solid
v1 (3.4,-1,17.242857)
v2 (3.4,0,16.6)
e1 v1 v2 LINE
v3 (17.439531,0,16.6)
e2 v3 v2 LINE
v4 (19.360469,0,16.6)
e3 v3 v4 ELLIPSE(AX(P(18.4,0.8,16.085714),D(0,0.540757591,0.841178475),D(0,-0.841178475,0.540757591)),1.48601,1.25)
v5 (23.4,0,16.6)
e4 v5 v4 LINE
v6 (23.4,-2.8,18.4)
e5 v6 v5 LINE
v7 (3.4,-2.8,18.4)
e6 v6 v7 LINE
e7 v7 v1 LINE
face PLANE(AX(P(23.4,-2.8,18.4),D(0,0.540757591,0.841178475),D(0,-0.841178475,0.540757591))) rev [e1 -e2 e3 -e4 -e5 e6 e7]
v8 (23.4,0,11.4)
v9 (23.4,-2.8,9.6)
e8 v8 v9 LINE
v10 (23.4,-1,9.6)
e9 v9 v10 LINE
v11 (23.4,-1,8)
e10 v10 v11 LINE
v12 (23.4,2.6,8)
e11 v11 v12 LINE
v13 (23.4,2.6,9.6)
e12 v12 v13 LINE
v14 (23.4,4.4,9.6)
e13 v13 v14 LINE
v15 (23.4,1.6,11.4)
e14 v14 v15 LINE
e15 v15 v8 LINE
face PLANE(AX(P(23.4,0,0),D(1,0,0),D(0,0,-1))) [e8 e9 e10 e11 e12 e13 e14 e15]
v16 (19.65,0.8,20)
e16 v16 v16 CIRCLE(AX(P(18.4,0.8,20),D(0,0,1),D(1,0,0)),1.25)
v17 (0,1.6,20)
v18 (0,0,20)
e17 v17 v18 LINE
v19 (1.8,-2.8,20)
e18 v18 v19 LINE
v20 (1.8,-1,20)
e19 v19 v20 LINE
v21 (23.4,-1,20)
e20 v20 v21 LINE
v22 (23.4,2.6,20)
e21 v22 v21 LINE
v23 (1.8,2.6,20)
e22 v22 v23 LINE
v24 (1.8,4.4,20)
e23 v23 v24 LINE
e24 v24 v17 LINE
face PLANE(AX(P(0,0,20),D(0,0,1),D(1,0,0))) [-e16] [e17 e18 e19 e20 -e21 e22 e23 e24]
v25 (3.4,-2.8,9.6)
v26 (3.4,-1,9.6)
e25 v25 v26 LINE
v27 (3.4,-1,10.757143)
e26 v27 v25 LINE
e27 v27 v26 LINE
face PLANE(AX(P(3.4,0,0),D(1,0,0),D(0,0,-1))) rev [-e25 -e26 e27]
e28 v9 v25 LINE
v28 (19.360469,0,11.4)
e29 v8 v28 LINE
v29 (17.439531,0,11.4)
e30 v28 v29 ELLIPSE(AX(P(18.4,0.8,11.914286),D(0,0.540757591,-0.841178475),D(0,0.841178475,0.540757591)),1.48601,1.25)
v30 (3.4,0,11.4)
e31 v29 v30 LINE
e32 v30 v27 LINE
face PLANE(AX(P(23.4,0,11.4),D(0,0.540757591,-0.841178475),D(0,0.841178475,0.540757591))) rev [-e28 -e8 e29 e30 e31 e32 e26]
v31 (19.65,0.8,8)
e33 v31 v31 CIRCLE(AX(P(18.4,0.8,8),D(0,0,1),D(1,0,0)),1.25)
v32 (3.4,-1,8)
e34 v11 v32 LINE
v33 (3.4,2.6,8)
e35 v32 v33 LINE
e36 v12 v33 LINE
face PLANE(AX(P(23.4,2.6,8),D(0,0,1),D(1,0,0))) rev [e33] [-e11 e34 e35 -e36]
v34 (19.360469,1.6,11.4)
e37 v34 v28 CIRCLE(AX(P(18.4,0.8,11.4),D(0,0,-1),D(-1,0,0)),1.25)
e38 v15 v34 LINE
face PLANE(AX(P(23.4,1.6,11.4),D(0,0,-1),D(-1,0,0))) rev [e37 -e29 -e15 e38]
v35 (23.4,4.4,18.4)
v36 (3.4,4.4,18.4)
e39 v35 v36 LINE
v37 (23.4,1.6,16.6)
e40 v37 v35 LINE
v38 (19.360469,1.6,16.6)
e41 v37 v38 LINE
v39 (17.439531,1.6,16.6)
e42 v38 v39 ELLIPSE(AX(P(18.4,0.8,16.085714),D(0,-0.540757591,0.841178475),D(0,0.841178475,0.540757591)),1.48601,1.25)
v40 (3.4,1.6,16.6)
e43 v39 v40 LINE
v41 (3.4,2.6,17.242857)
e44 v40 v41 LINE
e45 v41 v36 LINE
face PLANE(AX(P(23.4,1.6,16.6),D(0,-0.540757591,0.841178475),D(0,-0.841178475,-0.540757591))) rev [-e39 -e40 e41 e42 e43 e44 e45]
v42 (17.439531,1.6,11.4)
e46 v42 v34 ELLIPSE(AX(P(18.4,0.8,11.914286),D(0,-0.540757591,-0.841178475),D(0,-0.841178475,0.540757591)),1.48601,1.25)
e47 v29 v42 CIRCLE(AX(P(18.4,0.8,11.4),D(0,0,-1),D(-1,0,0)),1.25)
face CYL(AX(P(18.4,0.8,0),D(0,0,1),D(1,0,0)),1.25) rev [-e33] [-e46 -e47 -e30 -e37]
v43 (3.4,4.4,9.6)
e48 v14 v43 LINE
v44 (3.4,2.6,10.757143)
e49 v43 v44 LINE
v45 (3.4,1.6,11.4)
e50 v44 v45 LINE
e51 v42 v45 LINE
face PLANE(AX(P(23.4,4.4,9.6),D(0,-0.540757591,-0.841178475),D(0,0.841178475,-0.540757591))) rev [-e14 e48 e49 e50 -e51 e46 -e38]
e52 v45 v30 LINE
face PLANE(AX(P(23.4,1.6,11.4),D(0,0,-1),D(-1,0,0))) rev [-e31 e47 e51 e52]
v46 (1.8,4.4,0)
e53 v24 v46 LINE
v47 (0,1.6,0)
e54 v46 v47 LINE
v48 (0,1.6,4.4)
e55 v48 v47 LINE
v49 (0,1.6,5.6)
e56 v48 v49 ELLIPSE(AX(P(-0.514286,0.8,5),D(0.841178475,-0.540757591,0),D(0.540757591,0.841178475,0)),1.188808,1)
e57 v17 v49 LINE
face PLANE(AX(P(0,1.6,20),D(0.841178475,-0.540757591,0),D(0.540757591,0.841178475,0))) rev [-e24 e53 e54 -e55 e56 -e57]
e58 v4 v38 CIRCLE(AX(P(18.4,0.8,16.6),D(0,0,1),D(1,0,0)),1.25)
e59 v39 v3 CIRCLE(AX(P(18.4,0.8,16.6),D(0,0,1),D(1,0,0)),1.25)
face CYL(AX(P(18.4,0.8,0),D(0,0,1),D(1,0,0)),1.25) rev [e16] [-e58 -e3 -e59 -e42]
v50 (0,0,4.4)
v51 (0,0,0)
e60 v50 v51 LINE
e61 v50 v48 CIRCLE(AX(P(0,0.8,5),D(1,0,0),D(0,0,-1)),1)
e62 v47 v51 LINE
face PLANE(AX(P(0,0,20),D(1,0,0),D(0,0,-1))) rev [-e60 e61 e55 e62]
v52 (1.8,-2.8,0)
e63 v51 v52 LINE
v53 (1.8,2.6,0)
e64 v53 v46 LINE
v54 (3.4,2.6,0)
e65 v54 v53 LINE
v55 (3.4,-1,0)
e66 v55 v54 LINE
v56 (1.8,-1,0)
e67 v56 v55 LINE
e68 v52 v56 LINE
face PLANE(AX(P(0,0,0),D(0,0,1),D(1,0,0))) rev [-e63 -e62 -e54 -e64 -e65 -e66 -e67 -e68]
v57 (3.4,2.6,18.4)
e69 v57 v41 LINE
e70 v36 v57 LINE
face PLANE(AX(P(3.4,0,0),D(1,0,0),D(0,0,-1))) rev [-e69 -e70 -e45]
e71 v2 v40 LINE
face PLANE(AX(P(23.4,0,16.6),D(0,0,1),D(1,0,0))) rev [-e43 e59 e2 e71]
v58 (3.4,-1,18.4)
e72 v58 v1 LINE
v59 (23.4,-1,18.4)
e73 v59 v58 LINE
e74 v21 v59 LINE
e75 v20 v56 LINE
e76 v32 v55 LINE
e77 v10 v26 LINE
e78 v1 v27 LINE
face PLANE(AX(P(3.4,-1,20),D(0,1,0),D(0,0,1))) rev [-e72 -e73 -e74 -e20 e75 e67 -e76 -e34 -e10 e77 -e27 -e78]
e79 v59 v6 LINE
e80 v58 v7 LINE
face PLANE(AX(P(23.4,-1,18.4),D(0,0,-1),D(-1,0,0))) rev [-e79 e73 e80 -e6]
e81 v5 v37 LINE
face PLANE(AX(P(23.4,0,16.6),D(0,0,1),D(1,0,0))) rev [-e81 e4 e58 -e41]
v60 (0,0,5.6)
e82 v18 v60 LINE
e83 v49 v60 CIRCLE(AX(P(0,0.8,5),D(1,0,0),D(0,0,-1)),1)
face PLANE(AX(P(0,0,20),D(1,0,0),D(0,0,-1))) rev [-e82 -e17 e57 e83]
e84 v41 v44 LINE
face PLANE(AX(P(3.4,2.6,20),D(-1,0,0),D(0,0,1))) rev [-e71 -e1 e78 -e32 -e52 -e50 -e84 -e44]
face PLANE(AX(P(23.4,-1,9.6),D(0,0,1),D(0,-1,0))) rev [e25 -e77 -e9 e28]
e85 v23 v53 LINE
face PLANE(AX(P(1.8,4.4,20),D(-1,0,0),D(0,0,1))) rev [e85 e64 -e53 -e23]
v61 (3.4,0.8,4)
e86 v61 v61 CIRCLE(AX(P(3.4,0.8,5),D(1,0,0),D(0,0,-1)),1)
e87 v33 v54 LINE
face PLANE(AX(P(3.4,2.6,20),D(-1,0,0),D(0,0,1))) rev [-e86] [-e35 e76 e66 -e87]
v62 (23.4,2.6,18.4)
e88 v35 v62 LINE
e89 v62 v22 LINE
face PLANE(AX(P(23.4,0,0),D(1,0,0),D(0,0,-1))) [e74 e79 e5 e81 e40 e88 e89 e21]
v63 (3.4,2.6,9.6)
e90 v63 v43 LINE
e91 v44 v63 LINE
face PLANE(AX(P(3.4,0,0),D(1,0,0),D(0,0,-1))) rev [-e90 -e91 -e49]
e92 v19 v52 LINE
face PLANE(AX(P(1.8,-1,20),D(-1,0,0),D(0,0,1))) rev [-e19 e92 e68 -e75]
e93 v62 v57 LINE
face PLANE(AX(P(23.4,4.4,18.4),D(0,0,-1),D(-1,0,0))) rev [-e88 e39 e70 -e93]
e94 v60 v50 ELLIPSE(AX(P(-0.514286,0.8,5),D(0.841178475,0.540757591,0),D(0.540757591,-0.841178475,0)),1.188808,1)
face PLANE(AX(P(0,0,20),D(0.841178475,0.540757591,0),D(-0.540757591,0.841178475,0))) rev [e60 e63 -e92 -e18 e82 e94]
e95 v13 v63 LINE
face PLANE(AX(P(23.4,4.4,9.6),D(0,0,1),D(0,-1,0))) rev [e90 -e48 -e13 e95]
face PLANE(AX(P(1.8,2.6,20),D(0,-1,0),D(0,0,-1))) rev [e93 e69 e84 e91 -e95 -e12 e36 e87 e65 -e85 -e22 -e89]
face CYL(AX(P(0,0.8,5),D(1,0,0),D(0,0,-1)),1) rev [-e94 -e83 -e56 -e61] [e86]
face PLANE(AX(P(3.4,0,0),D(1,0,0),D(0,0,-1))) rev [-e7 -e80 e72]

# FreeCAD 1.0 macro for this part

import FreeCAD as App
import Part
import Sketcher

doc = App.newDocument("Part")
body = doc.addObject("PartDesign::Body", "Body")

# Sketch on XY plane
sketch1 = doc.addObject("Sketcher::SketchObject", "Sketch")
body.addObject(sketch1)
sketch1.AttachmentSupport = (doc.XY_Plane, [""])
sketch1.MapMode = "FlatFace"
sketch1.addGeometry([
    Part.LineSegment(App.Vector(0, 1.6, 0), App.Vector(0, 0, 0)),  # 0
    Part.LineSegment(App.Vector(0, 0, 0), App.Vector(1.8, -2.8, 0)),  # 1
    Part.LineSegment(App.Vector(1.8, -2.8, 0), App.Vector(1.8, -1, 0)),  # 2
    Part.LineSegment(App.Vector(1.8, -1, 0), App.Vector(3.4, -1, 0)),  # 3
    Part.LineSegment(App.Vector(3.4, -1, 0), App.Vector(3.4, 2.6, 0)),  # 4
    Part.LineSegment(App.Vector(3.4, 2.6, 0), App.Vector(1.8, 2.6, 0)),  # 5
    Part.LineSegment(App.Vector(1.8, 2.6, 0), App.Vector(1.8, 4.4, 0)),  # 6
    Part.LineSegment(App.Vector(1.8, 4.4, 0), App.Vector(0, 1.6, 0)),  # 7
], False)
sketch1.addConstraint([
    Sketcher.Constraint("Coincident", 0, 2, 1, 1),
    Sketcher.Constraint("Coincident", 1, 2, 2, 1),
    Sketcher.Constraint("Coincident", 2, 2, 3, 1),
    Sketcher.Constraint("Coincident", 3, 2, 4, 1),
    Sketcher.Constraint("Coincident", 4, 2, 5, 1),
    Sketcher.Constraint("Coincident", 5, 2, 6, 1),
    Sketcher.Constraint("Coincident", 6, 2, 7, 1),
    Sketcher.Constraint("Coincident", 7, 2, 0, 1),
    Sketcher.Constraint("Vertical", 0),
    Sketcher.Constraint("Vertical", 2),
    Sketcher.Constraint("Horizontal", 3),
    Sketcher.Constraint("Vertical", 4),
    Sketcher.Constraint("Horizontal", 5),
    Sketcher.Constraint("Vertical", 6),
    Sketcher.Constraint("Coincident", 0, 2, -1, 1),
    Sketcher.Constraint("Vertical", 2, 2, 5, 2),
    Sketcher.Constraint("Equal", 5, 0),
    Sketcher.Constraint("Equal", 2, 6),
    Sketcher.Constraint("Equal", 1, 7),
    Sketcher.Constraint("DistanceX", 3, 1, 3, 2, 1.6),
    Sketcher.Constraint("DistanceY", 2, 1, 2, 2, 1.8),
    Sketcher.Constraint("DistanceY", 4, 1, 4, 2, 3.6),
    Sketcher.Constraint("DistanceX", -1, 1, 1, 2, 1.8),
])
pad1 = doc.addObject("PartDesign::Pad", "Pad")
body.addObject(pad1)
pad1.Profile = sketch1
pad1.Length = 20

# Sketch on YZ plane
sketch2 = doc.addObject("Sketcher::SketchObject", "Sketch001")
body.addObject(sketch2)
sketch2.AttachmentSupport = (doc.YZ_Plane, [""])
sketch2.MapMode = "FlatFace"
sketch2.AttachmentOffset = App.Placement(App.Vector(0, 0, 3.4), App.Rotation())
sketch2.addGeometry(Part.Circle(App.Vector(0.8, 5, 0), App.Vector(0, 0, 1), 1), False)
sketch2.addConstraint([
    Sketcher.Constraint("Diameter", 0, 2.0),
    Sketcher.Constraint("DistanceY", -1, 1, 0, 3, 5.0),
    Sketcher.Constraint("DistanceX", -1, 1, 0, 3, 0.8),
])
pocket1 = doc.addObject("PartDesign::Pocket", "Pocket")
body.addObject(pocket1)
pocket1.Profile = sketch2
pocket1.Type = "ThroughAll"

# Sketch on YZ plane
sketch3 = doc.addObject("Sketcher::SketchObject", "Sketch002")
body.addObject(sketch3)
sketch3.AttachmentSupport = (doc.YZ_Plane, [""])
sketch3.MapMode = "FlatFace"
sketch3.AttachmentOffset = App.Placement(App.Vector(0, 0, 3.4), App.Rotation())
sketch3.addGeometry([
    Part.LineSegment(App.Vector(0, 16.6, 0), App.Vector(1.6, 16.6, 0)),  # 0
    Part.LineSegment(App.Vector(1.6, 16.6, 0), App.Vector(4.4, 18.4, 0)),  # 1
    Part.LineSegment(App.Vector(4.4, 18.4, 0), App.Vector(2.6, 18.4, 0)),  # 2
    Part.LineSegment(App.Vector(2.6, 18.4, 0), App.Vector(2.6, 20, 0)),  # 3
    Part.LineSegment(App.Vector(2.6, 20, 0), App.Vector(-1, 20, 0)),  # 4
    Part.LineSegment(App.Vector(-1, 20, 0), App.Vector(-1, 18.4, 0)),  # 5
    Part.LineSegment(App.Vector(-1, 18.4, 0), App.Vector(-2.8, 18.4, 0)),  # 6
    Part.LineSegment(App.Vector(-2.8, 18.4, 0), App.Vector(0, 16.6, 0)),  # 7
    Part.LineSegment(App.Vector(1.6, 11.4, 0), App.Vector(0, 11.4, 0)),  # 8
    Part.LineSegment(App.Vector(0, 11.4, 0), App.Vector(-2.8, 9.6, 0)),  # 9
    Part.LineSegment(App.Vector(-2.8, 9.6, 0), App.Vector(-1, 9.6, 0)),  # 10
    Part.LineSegment(App.Vector(-1, 9.6, 0), App.Vector(-1, 8, 0)),  # 11
    Part.LineSegment(App.Vector(-1, 8, 0), App.Vector(2.6, 8, 0)),  # 12
    Part.LineSegment(App.Vector(2.6, 8, 0), App.Vector(2.6, 9.6, 0)),  # 13
    Part.LineSegment(App.Vector(2.6, 9.6, 0), App.Vector(4.4, 9.6, 0)),  # 14
    Part.LineSegment(App.Vector(4.4, 9.6, 0), App.Vector(1.6, 11.4, 0)),  # 15
], False)
sketch3.addConstraint([
    Sketcher.Constraint("Coincident", 0, 2, 1, 1),
    Sketcher.Constraint("Coincident", 1, 2, 2, 1),
    Sketcher.Constraint("Coincident", 2, 2, 3, 1),
    Sketcher.Constraint("Coincident", 3, 2, 4, 1),
    Sketcher.Constraint("Coincident", 4, 2, 5, 1),
    Sketcher.Constraint("Coincident", 5, 2, 6, 1),
    Sketcher.Constraint("Coincident", 6, 2, 7, 1),
    Sketcher.Constraint("Coincident", 7, 2, 0, 1),
    Sketcher.Constraint("Coincident", 8, 2, 9, 1),
    Sketcher.Constraint("Coincident", 9, 2, 10, 1),
    Sketcher.Constraint("Coincident", 10, 2, 11, 1),
    Sketcher.Constraint("Coincident", 11, 2, 12, 1),
    Sketcher.Constraint("Coincident", 12, 2, 13, 1),
    Sketcher.Constraint("Coincident", 13, 2, 14, 1),
    Sketcher.Constraint("Coincident", 14, 2, 15, 1),
    Sketcher.Constraint("Coincident", 15, 2, 8, 1),
    Sketcher.Constraint("Horizontal", 0),
    Sketcher.Constraint("Horizontal", 2),
    Sketcher.Constraint("Vertical", 3),
    Sketcher.Constraint("Horizontal", 4),
    Sketcher.Constraint("Vertical", 5),
    Sketcher.Constraint("Horizontal", 6),
    Sketcher.Constraint("Horizontal", 8),
    Sketcher.Constraint("Horizontal", 10),
    Sketcher.Constraint("Vertical", 11),
    Sketcher.Constraint("Horizontal", 12),
    Sketcher.Constraint("Vertical", 13),
    Sketcher.Constraint("Horizontal", 14),
    Sketcher.Constraint("PointOnObject", 7, 2, -2),
    Sketcher.Constraint("PointOnObject", 8, 2, -2),
    Sketcher.Constraint("Parallel", 1, 9),
    Sketcher.Constraint("Parallel", 7, 15),
    Sketcher.Constraint("Horizontal", 2, 2, 5, 2),
    Sketcher.Constraint("Horizontal", 10, 2, 13, 2),
    Sketcher.Constraint("Vertical", 6, 2, 9, 2),
    Sketcher.Constraint("Vertical", 5, 2, 10, 2),
    Sketcher.Constraint("Vertical", 3, 2, 12, 2),
    Sketcher.Constraint("Vertical", 1, 2, 14, 2),
    Sketcher.Constraint("Vertical", 0, 2, 15, 2),
    Sketcher.Constraint("Equal", 2, 6),
    Sketcher.Constraint("Equal", 8, 3),
    Sketcher.Constraint("Equal", 5, 11),
    Sketcher.Constraint("DistanceX", 0, 1, 0, 2, 1.6),
    Sketcher.Constraint("DistanceX", 2, 2, 2, 1, 1.8),
    Sketcher.Constraint("DistanceX", 4, 2, 4, 1, 3.6),
    Sketcher.Constraint("DistanceY", -1, 1, 3, 2, 20.0),
    Sketcher.Constraint("DistanceY", -1, 1, 11, 2, 8.0),
    Sketcher.Constraint("DistanceY", 8, 2, 5, 2, 7.0),
])
pad2 = doc.addObject("PartDesign::Pad", "Pad001")
body.addObject(pad2)
pad2.Profile = sketch3
pad2.Length = 20

# Sketch on XY plane
sketch4 = doc.addObject("Sketcher::SketchObject", "Sketch003")
body.addObject(sketch4)
sketch4.AttachmentSupport = (doc.XY_Plane, [""])
sketch4.MapMode = "FlatFace"
sketch4.AttachmentOffset = App.Placement(App.Vector(0, 0, 20), App.Rotation())
sketch4.addGeometry(Part.Circle(App.Vector(18.4, 0.8, 0), App.Vector(0, 0, 1), 1.25), False)
sketch4.addConstraint([
    Sketcher.Constraint("Diameter", 0, 2.5),
    Sketcher.Constraint("DistanceX", -1, 1, 0, 3, 18.4),
    Sketcher.Constraint("DistanceY", -1, 1, 0, 3, 0.8),
])
pocket2 = doc.addObject("PartDesign::Pocket", "Pocket001")
body.addObject(pocket2)
pocket2.Profile = sketch4
pocket2.Type = "ThroughAll"

doc.recompute()
